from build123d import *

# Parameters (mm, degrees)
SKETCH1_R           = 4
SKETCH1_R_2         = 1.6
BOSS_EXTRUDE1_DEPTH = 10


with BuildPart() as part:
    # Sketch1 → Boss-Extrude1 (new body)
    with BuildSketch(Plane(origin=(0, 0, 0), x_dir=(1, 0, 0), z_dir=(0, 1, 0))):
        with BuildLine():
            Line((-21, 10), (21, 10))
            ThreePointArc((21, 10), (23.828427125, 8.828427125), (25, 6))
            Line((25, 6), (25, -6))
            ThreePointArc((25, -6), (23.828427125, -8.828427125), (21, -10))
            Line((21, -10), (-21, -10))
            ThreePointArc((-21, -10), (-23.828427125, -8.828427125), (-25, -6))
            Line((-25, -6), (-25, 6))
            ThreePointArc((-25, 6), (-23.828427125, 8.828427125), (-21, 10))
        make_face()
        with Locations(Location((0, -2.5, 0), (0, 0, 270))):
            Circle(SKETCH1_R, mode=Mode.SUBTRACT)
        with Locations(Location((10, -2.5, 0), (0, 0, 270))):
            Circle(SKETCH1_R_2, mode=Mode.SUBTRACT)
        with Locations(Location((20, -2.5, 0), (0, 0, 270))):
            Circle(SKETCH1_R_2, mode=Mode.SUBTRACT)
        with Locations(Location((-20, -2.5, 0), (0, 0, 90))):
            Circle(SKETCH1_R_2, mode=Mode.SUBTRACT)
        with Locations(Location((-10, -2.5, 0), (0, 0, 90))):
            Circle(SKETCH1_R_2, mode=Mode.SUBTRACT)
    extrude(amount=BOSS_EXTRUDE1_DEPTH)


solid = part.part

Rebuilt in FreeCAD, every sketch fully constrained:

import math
import FreeCAD as App
import Part
import Sketcher

doc = App.newDocument("Part")
body = doc.addObject("PartDesign::Body", "Body")

sketch1 = body.newObject("Sketcher::SketchObject", "Sketch")
sketch1.AttachmentSupport = (doc.getObject("XZ_Plane"), [""])
sketch1.MapMode = "FlatFace"
sketch1.addGeometry(Part.LineSegment(App.Vector(21, -10, 0), App.Vector(-21, -10, 0)), False)
sketch1.addGeometry(Part.ArcOfCircle(Part.Circle(App.Vector(-21, -6, 0), App.Vector(0, 0, 1), 4), math.radians(180), math.radians(270)), False)
sketch1.addGeometry(Part.LineSegment(App.Vector(-25, -6, 0), App.Vector(-25, 6, 0)), False)
sketch1.addGeometry(Part.ArcOfCircle(Part.Circle(App.Vector(-21, 6, 0), App.Vector(0, 0, 1), 4), math.radians(90), math.radians(180)), False)
sketch1.addGeometry(Part.LineSegment(App.Vector(-21, 10, 0), App.Vector(21, 10, 0)), False)
sketch1.addGeometry(Part.ArcOfCircle(Part.Circle(App.Vector(21, 6, 0), App.Vector(0, 0, 1), 4), math.radians(0), math.radians(90)), False)
sketch1.addGeometry(Part.LineSegment(App.Vector(25, 6, 0), App.Vector(25, -6, 0)), False)
sketch1.addGeometry(Part.ArcOfCircle(Part.Circle(App.Vector(21, -6, 0), App.Vector(0, 0, 1), 4), math.radians(-90), math.radians(0)), False)
sketch1.addGeometry(Part.Circle(App.Vector(20, 2.5, 0), App.Vector(0, 0, 1), 1.6), False)
sketch1.addGeometry(Part.Circle(App.Vector(10, 2.5, 0), App.Vector(0, 0, 1), 1.6), False)
sketch1.addGeometry(Part.Circle(App.Vector(0, 2.5, 0), App.Vector(0, 0, 1), 4), False)
sketch1.addGeometry(Part.Circle(App.Vector(-10, 2.5, 0), App.Vector(0, 0, 1), 1.6), False)
sketch1.addGeometry(Part.Circle(App.Vector(-20, 2.5, 0), App.Vector(0, 0, 1), 1.6), False)
sketch1.addConstraint(Sketcher.Constraint("Tangent", 0, 2, 1, 2))
sketch1.addConstraint(Sketcher.Constraint("Tangent", 1, 1, 2, 1))
sketch1.addConstraint(Sketcher.Constraint("Tangent", 2, 2, 3, 2))
sketch1.addConstraint(Sketcher.Constraint("Tangent", 3, 1, 4, 1))
sketch1.addConstraint(Sketcher.Constraint("Tangent", 4, 2, 5, 2))
sketch1.addConstraint(Sketcher.Constraint("Tangent", 5, 1, 6, 1))
sketch1.addConstraint(Sketcher.Constraint("Tangent", 6, 2, 7, 2))
sketch1.addConstraint(Sketcher.Constraint("Tangent", 7, 1, 0, 1))
sketch1.addConstraint(Sketcher.Constraint("Horizontal", 0))
sketch1.addConstraint(Sketcher.Constraint("Vertical", 2))
sketch1.addConstraint(Sketcher.Constraint("Horizontal", 4))
sketch1.addConstraint(Sketcher.Constraint("Vertical", 6))
sketch1.addConstraint(Sketcher.Constraint("Equal", 1, 3))
sketch1.addConstraint(Sketcher.Constraint("Equal", 3, 5))
sketch1.addConstraint(Sketcher.Constraint("Equal", 5, 7))
sketch1.addConstraint(Sketcher.Constraint("Equal", 8, 9))
sketch1.addConstraint(Sketcher.Constraint("Equal", 7, 10))
sketch1.addConstraint(Sketcher.Constraint("Equal", 9, 11))
sketch1.addConstraint(Sketcher.Constraint("Equal", 11, 12))
sketch1.addConstraint(Sketcher.Constraint("Symmetric", 1, 3, 5, 3, -1, 1))
sketch1.addConstraint(Sketcher.Constraint("Symmetric", 9, 3, 11, 3, -2))
sketch1.addConstraint(Sketcher.Constraint("Symmetric", 8, 3, 12, 3, -2))
sketch1.addConstraint(Sketcher.Constraint("PointOnObject", 10, 3, -2))
sketch1.addConstraint(Sketcher.Constraint("Horizontal", 8, 3, 9, 3))
sketch1.addConstraint(Sketcher.Constraint("Horizontal", 9, 3, 10, 3))
sketch1.addConstraint(Sketcher.Constraint("Diameter", 10, 8.0))
sketch1.addConstraint(Sketcher.Constraint("Diameter", 8, 3.2))
sketch1.addConstraint(Sketcher.Constraint("DistanceX", 0, 2, 0, 1, 42.0))
sketch1.addConstraint(Sketcher.Constraint("DistanceY", 2, 1, 2, 2, 12.0))
sketch1.addConstraint(Sketcher.Constraint("DistanceX", -1, 1, 8, 3, 20.0))
sketch1.addConstraint(Sketcher.Constraint("DistanceX", -1, 1, 9, 3, 10.0))
sketch1.addConstraint(Sketcher.Constraint("DistanceY", -1, 1, 8, 3, 2.5))
pad1 = body.newObject("PartDesign::Pad", "Pad")
pad1.Profile = sketch1
pad1.Length = 10
pad1.Reversed = True

doc.recompute()
